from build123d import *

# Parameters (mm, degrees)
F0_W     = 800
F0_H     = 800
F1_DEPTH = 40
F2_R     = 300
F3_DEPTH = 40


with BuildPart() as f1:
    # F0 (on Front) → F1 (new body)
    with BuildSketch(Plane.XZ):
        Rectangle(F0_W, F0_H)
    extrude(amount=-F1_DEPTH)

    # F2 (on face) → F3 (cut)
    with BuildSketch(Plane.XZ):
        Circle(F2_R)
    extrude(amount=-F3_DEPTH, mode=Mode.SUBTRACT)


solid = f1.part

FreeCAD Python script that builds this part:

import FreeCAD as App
import Part
import Sketcher
from FreeCAD import Vector
Q = App.Units.Quantity


def add_polygon(sketch, points):
    """Adds a closed chain of lines whose ends are joined by coincident constraints."""
    first, n = sketch.GeometryCount, len(points)
    for a, b in zip(points, points[1:] + points[:1]):
        sketch.addGeometry(Part.LineSegment(App.Vector(*a, 0), App.Vector(*b, 0)), False)
    for i in range(n):
        sketch.addConstraint(Sketcher.Constraint("Coincident", first + i, 2, first + (i + 1) % n, 1))

doc = App.newDocument("Part")
body = doc.addObject("PartDesign::Body", "Body")

# Sketch on XZ plane
sketch1 = doc.addObject("Sketcher::SketchObject", "Sketch")
body.addObject(sketch1)
sketch1.AttachmentSupport = (doc.XZ_Plane, [""])
sketch1.MapMode = "FlatFace"
add_polygon(sketch1, [(-400, 400), (-400, -400), (400, -400), (400, 400)])  # lines 0-3
sketch1.addConstraint([
    Sketcher.Constraint("Vertical", 0),
    Sketcher.Constraint("Horizontal", 1),
    Sketcher.Constraint("Vertical", 2),
    Sketcher.Constraint("Horizontal", 3),
    Sketcher.Constraint("Symmetric", 0, 2, 2, 2, -1, 1),
    Sketcher.Constraint("Equal", 3, 0),
    Sketcher.Constraint("DistanceX", 1, 1, 1, 2, Q("800 mm")),
])
pad1 = doc.addObject("PartDesign::Pad", "Pad")
body.addObject(pad1)
pad1.Profile = sketch1
pad1.Length = 40
pad1.Reversed = True

# Sketch on XZ plane
sketch2 = doc.addObject("Sketcher::SketchObject", "Sketch001")
body.addObject(sketch2)
sketch2.AttachmentSupport = (doc.XZ_Plane, [""])
sketch2.MapMode = "FlatFace"
sketch2.addGeometry(Part.Circle(Vector(0, 0, 0), Vector(0, 0, 1), 300), False)
sketch2.addConstraint([
    Sketcher.Constraint("Coincident", 0, 3, -1, 1),
    Sketcher.Constraint("Diameter", 0, Q("600 mm")),
])
pocket1 = doc.addObject("PartDesign::Pocket", "Pocket")
body.addObject(pocket1)
pocket1.Profile = sketch2
pocket1.Length = 40

doc.recompute()
